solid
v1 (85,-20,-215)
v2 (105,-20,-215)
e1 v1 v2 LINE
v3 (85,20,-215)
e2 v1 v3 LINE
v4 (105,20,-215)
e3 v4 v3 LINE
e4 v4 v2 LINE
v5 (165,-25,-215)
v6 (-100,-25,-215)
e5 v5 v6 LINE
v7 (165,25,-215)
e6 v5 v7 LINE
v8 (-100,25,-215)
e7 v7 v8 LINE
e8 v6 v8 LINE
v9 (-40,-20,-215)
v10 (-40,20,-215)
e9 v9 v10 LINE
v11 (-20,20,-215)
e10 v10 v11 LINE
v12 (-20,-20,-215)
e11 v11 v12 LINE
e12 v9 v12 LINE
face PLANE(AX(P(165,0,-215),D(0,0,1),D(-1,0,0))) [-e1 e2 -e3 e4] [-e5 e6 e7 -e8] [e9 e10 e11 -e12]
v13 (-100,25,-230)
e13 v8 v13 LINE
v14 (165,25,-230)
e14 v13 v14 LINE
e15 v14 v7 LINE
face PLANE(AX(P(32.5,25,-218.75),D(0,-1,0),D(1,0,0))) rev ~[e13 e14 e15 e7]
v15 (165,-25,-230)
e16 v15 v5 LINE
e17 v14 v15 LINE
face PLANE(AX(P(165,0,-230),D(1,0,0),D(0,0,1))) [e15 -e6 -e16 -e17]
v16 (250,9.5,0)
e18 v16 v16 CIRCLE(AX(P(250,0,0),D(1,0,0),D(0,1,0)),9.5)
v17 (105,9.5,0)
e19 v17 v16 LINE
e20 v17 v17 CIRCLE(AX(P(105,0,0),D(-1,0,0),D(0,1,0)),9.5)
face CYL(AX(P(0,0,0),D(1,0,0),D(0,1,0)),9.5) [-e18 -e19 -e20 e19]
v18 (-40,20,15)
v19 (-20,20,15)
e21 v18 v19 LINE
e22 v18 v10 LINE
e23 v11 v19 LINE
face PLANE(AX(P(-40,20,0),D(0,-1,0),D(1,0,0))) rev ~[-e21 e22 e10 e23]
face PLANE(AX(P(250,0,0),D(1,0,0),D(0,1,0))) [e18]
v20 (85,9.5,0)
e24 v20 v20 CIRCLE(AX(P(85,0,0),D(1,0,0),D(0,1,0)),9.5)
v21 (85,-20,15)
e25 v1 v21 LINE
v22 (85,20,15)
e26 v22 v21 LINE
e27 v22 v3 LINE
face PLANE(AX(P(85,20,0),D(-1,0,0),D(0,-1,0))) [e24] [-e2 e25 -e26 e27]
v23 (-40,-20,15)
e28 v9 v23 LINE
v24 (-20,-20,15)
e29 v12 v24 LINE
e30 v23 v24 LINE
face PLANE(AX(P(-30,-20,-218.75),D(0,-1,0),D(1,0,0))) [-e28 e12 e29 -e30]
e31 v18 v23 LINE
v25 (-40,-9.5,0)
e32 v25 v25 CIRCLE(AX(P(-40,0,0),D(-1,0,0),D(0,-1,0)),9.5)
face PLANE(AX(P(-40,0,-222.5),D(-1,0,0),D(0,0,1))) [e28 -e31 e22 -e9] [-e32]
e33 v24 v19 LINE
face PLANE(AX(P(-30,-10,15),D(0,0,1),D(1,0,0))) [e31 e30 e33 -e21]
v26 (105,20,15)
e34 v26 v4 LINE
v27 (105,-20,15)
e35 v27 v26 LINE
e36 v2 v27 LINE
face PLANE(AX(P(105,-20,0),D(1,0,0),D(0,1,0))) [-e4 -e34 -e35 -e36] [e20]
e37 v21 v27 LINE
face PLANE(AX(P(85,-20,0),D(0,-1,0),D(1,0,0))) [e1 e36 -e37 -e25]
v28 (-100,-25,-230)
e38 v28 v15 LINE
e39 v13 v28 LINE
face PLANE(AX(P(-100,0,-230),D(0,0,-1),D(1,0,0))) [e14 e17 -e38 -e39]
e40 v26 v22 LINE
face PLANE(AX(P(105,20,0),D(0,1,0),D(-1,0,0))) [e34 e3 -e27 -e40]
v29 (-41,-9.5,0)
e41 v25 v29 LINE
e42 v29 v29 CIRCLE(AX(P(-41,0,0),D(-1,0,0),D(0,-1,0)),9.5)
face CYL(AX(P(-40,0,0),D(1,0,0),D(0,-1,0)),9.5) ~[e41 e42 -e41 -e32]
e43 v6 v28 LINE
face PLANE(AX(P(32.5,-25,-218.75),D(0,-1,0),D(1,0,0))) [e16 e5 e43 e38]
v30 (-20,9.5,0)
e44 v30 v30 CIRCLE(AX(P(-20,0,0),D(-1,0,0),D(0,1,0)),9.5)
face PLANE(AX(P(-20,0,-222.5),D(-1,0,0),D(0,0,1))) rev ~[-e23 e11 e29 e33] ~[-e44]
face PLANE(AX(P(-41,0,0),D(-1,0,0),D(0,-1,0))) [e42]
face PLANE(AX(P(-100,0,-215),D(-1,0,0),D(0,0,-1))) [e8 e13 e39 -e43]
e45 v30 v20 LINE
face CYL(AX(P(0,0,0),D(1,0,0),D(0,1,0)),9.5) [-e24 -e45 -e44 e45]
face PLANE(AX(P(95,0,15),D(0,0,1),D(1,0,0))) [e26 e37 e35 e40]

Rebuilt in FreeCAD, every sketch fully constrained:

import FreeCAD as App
import Part
import Sketcher
from FreeCAD import Vector

doc = App.newDocument("Part")
body = doc.addObject("PartDesign::Body", "Body")

sketch1 = body.newObject("Sketcher::SketchObject", "Sketch")
sketch1.AttachmentSupport = (doc.getObject("YZ_Plane"), [""])
sketch1.MapMode = "FlatFace"
sketch1.addGeometry(Part.Circle(Vector(0, 0, 0), Vector(0, 0, 1), 10), False)
sketch1.addConstraint(Sketcher.Constraint("Coincident", 0, 3, -1, 1))
sketch1.addConstraint(Sketcher.Constraint("Diameter", 0, 19.0))
pad1 = body.newObject("PartDesign::Pad", "Pad")
pad1.Profile = sketch1
pad1.Length = 40
pad1.Reversed = True

sketch2 = body.newObject("Sketcher::SketchObject", "Sketch001")
sketch2.AttachmentSupport = (doc.getObject("YZ_Plane"), [""])
sketch2.MapMode = "FlatFace"
sketch2.addGeometry(Part.Circle(Vector(0, 0, 0), Vector(0, 0, 1), 10), False)
sketch2.addConstraint(Sketcher.Constraint("Coincident", 0, 3, -1, 1))
sketch2.addConstraint(Sketcher.Constraint("Diameter", 0, 19.0))
pad2 = body.newObject("PartDesign::Pad", "Pad001")
pad2.Profile = sketch2
pad2.Length = 70

sketch3 = body.newObject("Sketcher::SketchObject", "Sketch002")
sketch3.AttachmentSupport = (doc.getObject("YZ_Plane"), [""])
sketch3.MapMode = "FlatFace"
sketch3.AttachmentOffset = App.Placement(Vector(0, 0, 70), App.Rotation())
sketch3.addGeometry(Part.Circle(Vector(0, 0, 0), Vector(0, 0, 1), 10), False)
sketch3.addConstraint(Sketcher.Constraint("Coincident", 0, 3, -1, 1))
sketch3.addConstraint(Sketcher.Constraint("Diameter", 0, 19.0))
pad3 = body.newObject("PartDesign::Pad", "Pad002")
pad3.Profile = sketch3
pad3.Length = 180

sketch4 = body.newObject("Sketcher::SketchObject", "Sketch003")
sketch4.AttachmentSupport = (doc.getObject("XY_Plane"), [""])
sketch4.MapMode = "FlatFace"
sketch4.addGeometry(Part.LineSegment(Vector(-40, -20, 0), Vector(-20, -20, 0)), False)
sketch4.addGeometry(Part.LineSegment(Vector(-20, -20, 0), Vector(-20, 20, 0)), False)
sketch4.addGeometry(Part.LineSegment(Vector(-20, 20, 0), Vector(-40, 20, 0)), False)
sketch4.addGeometry(Part.LineSegment(Vector(-40, 20, 0), Vector(-40, -20, 0)), False)
sketch4.addConstraint(Sketcher.Constraint("Coincident", 0, 2, 1, 1))
sketch4.addConstraint(Sketcher.Constraint("Coincident", 1, 2, 2, 1))
sketch4.addConstraint(Sketcher.Constraint("Coincident", 2, 2, 3, 1))
sketch4.addConstraint(Sketcher.Constraint("Coincident", 3, 2, 0, 1))
sketch4.addConstraint(Sketcher.Constraint("Horizontal", 0))
sketch4.addConstraint(Sketcher.Constraint("Vertical", 1))
sketch4.addConstraint(Sketcher.Constraint("Horizontal", 2))
sketch4.addConstraint(Sketcher.Constraint("Vertical", 3))
sketch4.addConstraint(Sketcher.Constraint("DistanceX", 0, 1, 0, 2, 20.0))
sketch4.addConstraint(Sketcher.Constraint("DistanceY", 1, 1, 1, 2, 40.0))
sketch4.addConstraint(Sketcher.Constraint("DistanceX", 0, 2, -1, 1, 20.0))
sketch4.addConstraint(Sketcher.Constraint("DistanceY", 0, 2, -1, 1, 20.0))
pad4 = body.newObject("PartDesign::Pad", "Pad003")
pad4.Profile = sketch4
pad4.Length = 15

sketch5 = body.newObject("Sketcher::SketchObject", "Sketch004")
sketch5.AttachmentSupport = (doc.getObject("XY_Plane"), [""])
sketch5.MapMode = "FlatFace"
sketch5.addGeometry(Part.LineSegment(Vector(-40, -20, 0), Vector(-20, -20, 0)), False)
sketch5.addGeometry(Part.LineSegment(Vector(-20, -20, 0), Vector(-20, 20, 0)), False)
sketch5.addGeometry(Part.LineSegment(Vector(-20, 20, 0), Vector(-40, 20, 0)), False)
sketch5.addGeometry(Part.LineSegment(Vector(-40, 20, 0), Vector(-40, -20, 0)), False)
sketch5.addConstraint(Sketcher.Constraint("Coincident", 0, 2, 1, 1))
sketch5.addConstraint(Sketcher.Constraint("Coincident", 1, 2, 2, 1))
sketch5.addConstraint(Sketcher.Constraint("Coincident", 2, 2, 3, 1))
sketch5.addConstraint(Sketcher.Constraint("Coincident", 3, 2, 0, 1))
sketch5.addConstraint(Sketcher.Constraint("Horizontal", 0))
sketch5.addConstraint(Sketcher.Constraint("Vertical", 1))
sketch5.addConstraint(Sketcher.Constraint("Horizontal", 2))
sketch5.addConstraint(Sketcher.Constraint("Vertical", 3))
sketch5.addConstraint(Sketcher.Constraint("DistanceX", 0, 1, 0, 2, 20.0))
sketch5.addConstraint(Sketcher.Constraint("DistanceY", 1, 1, 1, 2, 40.0))
sketch5.addConstraint(Sketcher.Constraint("DistanceX", 0, 2, -1, 1, 20.0))
sketch5.addConstraint(Sketcher.Constraint("DistanceY", 0, 2, -1, 1, 20.0))
pad5 = body.newObject("PartDesign::Pad", "Pad004")
pad5.Profile = sketch5
pad5.Length = 215
pad5.Reversed = True

sketch6 = body.newObject("Sketcher::SketchObject", "Sketch005")
sketch6.AttachmentSupport = (doc.getObject("XY_Plane"), [""])
sketch6.MapMode = "FlatFace"
sketch6.addGeometry(Part.LineSegment(Vector(85, -20, 0), Vector(105, -20, 0)), False)
sketch6.addGeometry(Part.LineSegment(Vector(105, -20, 0), Vector(105, 20, 0)), False)
sketch6.addGeometry(Part.LineSegment(Vector(105, 20, 0), Vector(85, 20, 0)), False)
sketch6.addGeometry(Part.LineSegment(Vector(85, 20, 0), Vector(85, -20, 0)), False)
sketch6.addConstraint(Sketcher.Constraint("Coincident", 0, 2, 1, 1))
sketch6.addConstraint(Sketcher.Constraint("Coincident", 1, 2, 2, 1))
sketch6.addConstraint(Sketcher.Constraint("Coincident", 2, 2, 3, 1))
sketch6.addConstraint(Sketcher.Constraint("Coincident", 3, 2, 0, 1))
sketch6.addConstraint(Sketcher.Constraint("Horizontal", 0))
sketch6.addConstraint(Sketcher.Constraint("Vertical", 1))
sketch6.addConstraint(Sketcher.Constraint("Horizontal", 2))
sketch6.addConstraint(Sketcher.Constraint("Vertical", 3))
sketch6.addConstraint(Sketcher.Constraint("DistanceX", 0, 1, 0, 2, 20.0))
sketch6.addConstraint(Sketcher.Constraint("DistanceY", 1, 1, 1, 2, 40.0))
sketch6.addConstraint(Sketcher.Constraint("DistanceX", -1, 1, 0, 2, 105.0))
sketch6.addConstraint(Sketcher.Constraint("DistanceY", 0, 2, -1, 1, 20.0))
pad6 = body.newObject("PartDesign::Pad", "Pad005")
pad6.Profile = sketch6
pad6.Length = 15

sketch7 = body.newObject("Sketcher::SketchObject", "Sketch006")
sketch7.AttachmentSupport = (doc.getObject("XY_Plane"), [""])
sketch7.MapMode = "FlatFace"
sketch7.addGeometry(Part.LineSegment(Vector(-40, -20, 0), Vector(-20, -20, 0)), False)
sketch7.addGeometry(Part.LineSegment(Vector(-20, -20, 0), Vector(-20, 20, 0)), False)
sketch7.addGeometry(Part.LineSegment(Vector(-20, 20, 0), Vector(-40, 20, 0)), False)
sketch7.addGeometry(Part.LineSegment(Vector(-40, 20, 0), Vector(-40, -20, 0)), False)
sketch7.addConstraint(Sketcher.Constraint("Coincident", 0, 2, 1, 1))
sketch7.addConstraint(Sketcher.Constraint("Coincident", 1, 2, 2, 1))
sketch7.addConstraint(Sketcher.Constraint("Coincident", 2, 2, 3, 1))
sketch7.addConstraint(Sketcher.Constraint("Coincident", 3, 2, 0, 1))
sketch7.addConstraint(Sketcher.Constraint("Horizontal", 0))
sketch7.addConstraint(Sketcher.Constraint("Vertical", 1))
sketch7.addConstraint(Sketcher.Constraint("Horizontal", 2))
sketch7.addConstraint(Sketcher.Constraint("Vertical", 3))
sketch7.addConstraint(Sketcher.Constraint("DistanceX", 0, 1, 0, 2, 20.0))
sketch7.addConstraint(Sketcher.Constraint("DistanceY", 1, 1, 1, 2, 40.0))
sketch7.addConstraint(Sketcher.Constraint("DistanceX", 0, 2, -1, 1, 20.0))
sketch7.addConstraint(Sketcher.Constraint("DistanceY", 0, 2, -1, 1, 20.0))
pad7 = body.newObject("PartDesign::Pad", "Pad006")
pad7.Profile = sketch7
pad7.Length = 15

sketch8 = body.newObject("Sketcher::SketchObject", "Sketch007")
sketch8.AttachmentSupport = (doc.getObject("XY_Plane"), [""])
sketch8.MapMode = "FlatFace"
sketch8.addGeometry(Part.LineSegment(Vector(-40, -20, 0), Vector(-20, -20, 0)), False)
sketch8.addGeometry(Part.LineSegment(Vector(-20, -20, 0), Vector(-20, 20, 0)), False)
sketch8.addGeometry(Part.LineSegment(Vector(-20, 20, 0), Vector(-40, 20, 0)), False)
sketch8.addGeometry(Part.LineSegment(Vector(-40, 20, 0), Vector(-40, -20, 0)), False)
sketch8.addConstraint(Sketcher.Constraint("Coincident", 0, 2, 1, 1))
sketch8.addConstraint(Sketcher.Constraint("Coincident", 1, 2, 2, 1))
sketch8.addConstraint(Sketcher.Constraint("Coincident", 2, 2, 3, 1))
sketch8.addConstraint(Sketcher.Constraint("Coincident", 3, 2, 0, 1))
sketch8.addConstraint(Sketcher.Constraint("Horizontal", 0))
sketch8.addConstraint(Sketcher.Constraint("Vertical", 1))
sketch8.addConstraint(Sketcher.Constraint("Horizontal", 2))
sketch8.addConstraint(Sketcher.Constraint("Vertical", 3))
sketch8.addConstraint(Sketcher.Constraint("DistanceX", 0, 1, 0, 2, 20.0))
sketch8.addConstraint(Sketcher.Constraint("DistanceY", 1, 1, 1, 2, 40.0))
sketch8.addConstraint(Sketcher.Constraint("DistanceX", 0, 2, -1, 1, 20.0))
sketch8.addConstraint(Sketcher.Constraint("DistanceY", 0, 2, -1, 1, 20.0))
pad8 = body.newObject("PartDesign::Pad", "Pad007")
pad8.Profile = sketch8
pad8.Length = 215
pad8.Reversed = True

sketch9 = body.newObject("Sketcher::SketchObject", "Sketch008")
sketch9.AttachmentSupport = (doc.getObject("XY_Plane"), [""])
sketch9.MapMode = "FlatFace"
sketch9.addGeometry(Part.LineSegment(Vector(85, 20, 0), Vector(85, -20, 0)), False)
sketch9.addGeometry(Part.LineSegment(Vector(85, -20, 0), Vector(105, -20, 0)), False)
sketch9.addGeometry(Part.LineSegment(Vector(105, -20, 0), Vector(105, 20, 0)), False)
sketch9.addGeometry(Part.LineSegment(Vector(105, 20, 0), Vector(85, 20, 0)), False)
sketch9.addConstraint(Sketcher.Constraint("Coincident", 0, 2, 1, 1))
sketch9.addConstraint(Sketcher.Constraint("Coincident", 1, 2, 2, 1))
sketch9.addConstraint(Sketcher.Constraint("Coincident", 2, 2, 3, 1))
sketch9.addConstraint(Sketcher.Constraint("Coincident", 3, 2, 0, 1))
sketch9.addConstraint(Sketcher.Constraint("Vertical", 0))
sketch9.addConstraint(Sketcher.Constraint("Horizontal", 1))
sketch9.addConstraint(Sketcher.Constraint("Vertical", 2))
sketch9.addConstraint(Sketcher.Constraint("Horizontal", 3))
sketch9.addConstraint(Sketcher.Constraint("DistanceX", 1, 1, 1, 2, 20.0))
sketch9.addConstraint(Sketcher.Constraint("DistanceY", 0, 2, 0, 1, 40.0))
sketch9.addConstraint(Sketcher.Constraint("DistanceX", -1, 1, 0, 2, 85.0))
sketch9.addConstraint(Sketcher.Constraint("DistanceY", 0, 2, -1, 1, 20.0))
pad9 = body.newObject("PartDesign::Pad", "Pad008")
pad9.Profile = sketch9
pad9.Length = 215
pad9.Reversed = True

sketch10 = body.newObject("Sketcher::SketchObject", "Sketch009")
sketch10.AttachmentSupport = (doc.getObject("XZ_Plane"), [""])
sketch10.MapMode = "FlatFace"
sketch10.addGeometry(Part.LineSegment(Vector(-40, -215, 0), Vector(-40, -222, 0)), False)
sketch10.addGeometry(Part.LineSegment(Vector(-40, -222, 0), Vector(-20, -222, 0)), False)
sketch10.addGeometry(Part.LineSegment(Vector(-20, -222, 0), Vector(-20, -215, 0)), False)
sketch10.addGeometry(Part.LineSegment(Vector(-20, -215, 0), Vector(-40, -215, 0)), False)
sketch10.addConstraint(Sketcher.Constraint("Coincident", 0, 2, 1, 1))
sketch10.addConstraint(Sketcher.Constraint("Coincident", 1, 2, 2, 1))
sketch10.addConstraint(Sketcher.Constraint("Coincident", 2, 2, 3, 1))
sketch10.addConstraint(Sketcher.Constraint("Coincident", 3, 2, 0, 1))
sketch10.addConstraint(Sketcher.Constraint("Vertical", 0))
sketch10.addConstraint(Sketcher.Constraint("Horizontal", 1))
sketch10.addConstraint(Sketcher.Constraint("Vertical", 2))
sketch10.addConstraint(Sketcher.Constraint("Horizontal", 3))
sketch10.addConstraint(Sketcher.Constraint("DistanceX", 1, 1, 1, 2, 20.0))
sketch10.addConstraint(Sketcher.Constraint("DistanceY", 0, 2, 0, 1, 7.5))
sketch10.addConstraint(Sketcher.Constraint("DistanceX", 0, 2, -1, 1, 40.0))
sketch10.addConstraint(Sketcher.Constraint("DistanceY", 2, 2, -1, 1, 215.0))
pad10 = body.newObject("PartDesign::Pad", "Pad009")
pad10.Profile = sketch10
pad10.Length = 20

sketch11 = body.newObject("Sketcher::SketchObject", "Sketch010")
sketch11.AttachmentSupport = (doc.getObject("XZ_Plane"), [""])
sketch11.MapMode = "FlatFace"
sketch11.addGeometry(Part.LineSegment(Vector(-100, -215, 0), Vector(-100, -230, 0)), False)
sketch11.addGeometry(Part.LineSegment(Vector(-100, -230, 0), Vector(165, -230, 0)), False)
sketch11.addGeometry(Part.LineSegment(Vector(165, -230, 0), Vector(165, -215, 0)), False)
sketch11.addGeometry(Part.LineSegment(Vector(165, -215, 0), Vector(-100, -215, 0)), False)
sketch11.addConstraint(Sketcher.Constraint("Coincident", 0, 2, 1, 1))
sketch11.addConstraint(Sketcher.Constraint("Coincident", 1, 2, 2, 1))
sketch11.addConstraint(Sketcher.Constraint("Coincident", 2, 2, 3, 1))
sketch11.addConstraint(Sketcher.Constraint("Coincident", 3, 2, 0, 1))
sketch11.addConstraint(Sketcher.Constraint("Vertical", 0))
sketch11.addConstraint(Sketcher.Constraint("Horizontal", 1))
sketch11.addConstraint(Sketcher.Constraint("Vertical", 2))
sketch11.addConstraint(Sketcher.Constraint("Horizontal", 3))
sketch11.addConstraint(Sketcher.Constraint("DistanceX", 1, 1, 1, 2, 265.0))
sketch11.addConstraint(Sketcher.Constraint("DistanceY", 0, 2, 0, 1, 15.0))
sketch11.addConstraint(Sketcher.Constraint("DistanceX", 0, 2, -1, 1, 100.0))
sketch11.addConstraint(Sketcher.Constraint("DistanceY", 0, 2, -1, 1, 230.0))
pad11 = body.newObject("PartDesign::Pad", "Pad010")
pad11.Profile = sketch11
pad11.Length = 25

sketch12 = body.newObject("Sketcher::SketchObject", "Sketch011")
sketch12.AttachmentSupport = (doc.getObject("XZ_Plane"), [""])
sketch12.MapMode = "FlatFace"
sketch12.addGeometry(Part.LineSegment(Vector(-100, -215, 0), Vector(-100, -230, 0)), False)
sketch12.addGeometry(Part.LineSegment(Vector(-100, -230, 0), Vector(165, -230, 0)), False)
sketch12.addGeometry(Part.LineSegment(Vector(165, -230, 0), Vector(165, -215, 0)), False)
sketch12.addGeometry(Part.LineSegment(Vector(165, -215, 0), Vector(-100, -215, 0)), False)
sketch12.addConstraint(Sketcher.Constraint("Coincident", 0, 2, 1, 1))
sketch12.addConstraint(Sketcher.Constraint("Coincident", 1, 2, 2, 1))
sketch12.addConstraint(Sketcher.Constraint("Coincident", 2, 2, 3, 1))
sketch12.addConstraint(Sketcher.Constraint("Coincident", 3, 2, 0, 1))
sketch12.addConstraint(Sketcher.Constraint("Vertical", 0))
sketch12.addConstraint(Sketcher.Constraint("Horizontal", 1))
sketch12.addConstraint(Sketcher.Constraint("Vertical", 2))
sketch12.addConstraint(Sketcher.Constraint("Horizontal", 3))
sketch12.addConstraint(Sketcher.Constraint("DistanceX", 1, 1, 1, 2, 265.0))
sketch12.addConstraint(Sketcher.Constraint("DistanceY", 0, 2, 0, 1, 15.0))
sketch12.addConstraint(Sketcher.Constraint("DistanceX", 0, 2, -1, 1, 100.0))
sketch12.addConstraint(Sketcher.Constraint("DistanceY", 0, 2, -1, 1, 230.0))
pad12 = body.newObject("PartDesign::Pad", "Pad011")
pad12.Profile = sketch12
pad12.Length = 25
pad12.Reversed = True

sketch13 = body.newObject("Sketcher::SketchObject", "Sketch012")
sketch13.AttachmentSupport = (doc.getObject("YZ_Plane"), [""])
sketch13.MapMode = "FlatFace"
sketch13.AttachmentOffset = App.Placement(Vector(0, 0, -40), App.Rotation())
sketch13.addGeometry(Part.Circle(Vector(0, 0, 0), Vector(0, 0, 1), 10), False)
sketch13.addConstraint(Sketcher.Constraint("Coincident", 0, 3, -1, 1))
sketch13.addConstraint(Sketcher.Constraint("Diameter", 0, 19.0))
pad13 = body.newObject("PartDesign::Pad", "Pad012")
pad13.Profile = sketch13
pad13.Length = 1
pad13.Reversed = True

doc.recompute()
